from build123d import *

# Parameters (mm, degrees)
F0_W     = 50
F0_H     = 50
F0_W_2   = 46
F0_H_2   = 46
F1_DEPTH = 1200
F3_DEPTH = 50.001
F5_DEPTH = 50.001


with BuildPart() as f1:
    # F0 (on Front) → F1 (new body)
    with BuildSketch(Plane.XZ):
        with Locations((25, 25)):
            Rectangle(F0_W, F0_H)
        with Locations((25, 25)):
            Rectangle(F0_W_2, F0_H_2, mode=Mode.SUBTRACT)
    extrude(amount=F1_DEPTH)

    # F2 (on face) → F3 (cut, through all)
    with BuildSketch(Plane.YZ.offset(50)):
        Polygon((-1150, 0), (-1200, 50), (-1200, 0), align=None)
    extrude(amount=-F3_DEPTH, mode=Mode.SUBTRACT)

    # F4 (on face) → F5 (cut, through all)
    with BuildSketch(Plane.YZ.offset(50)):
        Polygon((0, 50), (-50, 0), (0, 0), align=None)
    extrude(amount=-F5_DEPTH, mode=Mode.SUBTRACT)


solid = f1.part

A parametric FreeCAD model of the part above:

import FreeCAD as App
import Part
import Sketcher

V = App.Vector

doc = App.newDocument("Part")
body = doc.addObject("PartDesign::Body", "Body")

# Sketch on XZ plane
sketch1 = body.newObject("Sketcher::SketchObject", "Sketch")
sketch1.AttachmentSupport = (doc.getObject("XZ_Plane"), [""])
sketch1.MapMode = "FlatFace"
sketch1.addGeometry(Part.LineSegment(V(0, 50, 0), V(0, 0, 0)), False)
sketch1.addGeometry(Part.LineSegment(V(0, 0, 0), V(50, 0, 0)), False)
sketch1.addGeometry(Part.LineSegment(V(50, 0, 0), V(50, 50, 0)), False)
sketch1.addGeometry(Part.LineSegment(V(50, 50, 0), V(0, 50, 0)), False)
sketch1.addGeometry(Part.LineSegment(V(48, 2, 0), V(2, 2, 0)), False)
sketch1.addGeometry(Part.LineSegment(V(2, 2, 0), V(2, 48, 0)), False)
sketch1.addGeometry(Part.LineSegment(V(2, 48, 0), V(48, 48, 0)), False)
sketch1.addGeometry(Part.LineSegment(V(48, 48, 0), V(48, 2, 0)), False)
sketch1.addConstraint(Sketcher.Constraint("Coincident", 0, 2, 1, 1))
sketch1.addConstraint(Sketcher.Constraint("Coincident", 1, 2, 2, 1))
sketch1.addConstraint(Sketcher.Constraint("Coincident", 2, 2, 3, 1))
sketch1.addConstraint(Sketcher.Constraint("Coincident", 3, 2, 0, 1))
sketch1.addConstraint(Sketcher.Constraint("Coincident", 4, 2, 5, 1))
sketch1.addConstraint(Sketcher.Constraint("Coincident", 5, 2, 6, 1))
sketch1.addConstraint(Sketcher.Constraint("Coincident", 6, 2, 7, 1))
sketch1.addConstraint(Sketcher.Constraint("Coincident", 7, 2, 4, 1))
sketch1.addConstraint(Sketcher.Constraint("Vertical", 0))
sketch1.addConstraint(Sketcher.Constraint("Horizontal", 1))
sketch1.addConstraint(Sketcher.Constraint("Vertical", 2))
sketch1.addConstraint(Sketcher.Constraint("Horizontal", 3))
sketch1.addConstraint(Sketcher.Constraint("Horizontal", 4))
sketch1.addConstraint(Sketcher.Constraint("Vertical", 5))
sketch1.addConstraint(Sketcher.Constraint("Horizontal", 6))
sketch1.addConstraint(Sketcher.Constraint("Vertical", 7))
sketch1.addConstraint(Sketcher.Constraint("Coincident", 0, 2, -1, 1))
sketch1.addConstraint(Sketcher.Constraint("Equal", 3, 0))
sketch1.addConstraint(Sketcher.Constraint("Equal", 6, 5))
sketch1.addConstraint(Sketcher.Constraint("DistanceX", 1, 1, 1, 2, 50.0))
sketch1.addConstraint(Sketcher.Constraint("DistanceX", 4, 2, 4, 1, 46.0))
sketch1.addConstraint(Sketcher.Constraint("DistanceX", -1, 1, 4, 2, 2.0))
sketch1.addConstraint(Sketcher.Constraint("DistanceY", -1, 1, 4, 2, 2.0))
pad1 = body.newObject("PartDesign::Pad", "Pad")
pad1.Profile = sketch1
pad1.Length = 1200

# Sketch on YZ plane
sketch2 = body.newObject("Sketcher::SketchObject", "Sketch001")
sketch2.AttachmentSupport = (doc.getObject("YZ_Plane"), [""])
sketch2.MapMode = "FlatFace"
sketch2.AttachmentOffset = App.Placement(V(0, 0, 50), App.Rotation())
sketch2.addGeometry(Part.LineSegment(V(-1150, 0, 0), V(-1200, 50, 0)), False)
sketch2.addGeometry(Part.LineSegment(V(-1200, 50, 0), V(-1200, 0, 0)), False)
sketch2.addGeometry(Part.LineSegment(V(-1200, 0, 0), V(-1150, 0, 0)), False)
sketch2.addConstraint(Sketcher.Constraint("Coincident", 0, 2, 1, 1))
sketch2.addConstraint(Sketcher.Constraint("Coincident", 1, 2, 2, 1))
sketch2.addConstraint(Sketcher.Constraint("Coincident", 2, 2, 0, 1))
sketch2.addConstraint(Sketcher.Constraint("Vertical", 1))
sketch2.addConstraint(Sketcher.Constraint("Horizontal", 2))
sketch2.addConstraint(Sketcher.Constraint("PointOnObject", 1, 2, -1))
sketch2.addConstraint(Sketcher.Constraint("Equal", 2, 1))
sketch2.addConstraint(Sketcher.Constraint("DistanceX", 2, 1, 2, 2, 50.0))
sketch2.addConstraint(Sketcher.Constraint("DistanceX", 0, 2, -1, 1, 1200.0))
pocket1 = body.newObject("PartDesign::Pocket", "Pocket")
pocket1.Profile = sketch2
pocket1.Type = "ThroughAll"

# Sketch on YZ plane
sketch3 = body.newObject("Sketcher::SketchObject", "Sketch002")
sketch3.AttachmentSupport = (doc.getObject("YZ_Plane"), [""])
sketch3.MapMode = "FlatFace"
sketch3.AttachmentOffset = App.Placement(V(0, 0, 50), App.Rotation())
sketch3.addGeometry(Part.LineSegment(V(0, 50, 0), V(-50, 0, 0)), False)
sketch3.addGeometry(Part.LineSegment(V(-50, 0, 0), V(0, 0, 0)), False)
sketch3.addGeometry(Part.LineSegment(V(0, 0, 0), V(0, 50, 0)), False)
sketch3.addConstraint(Sketcher.Constraint("Coincident", 0, 2, 1, 1))
sketch3.addConstraint(Sketcher.Constraint("Coincident", 1, 2, 2, 1))
sketch3.addConstraint(Sketcher.Constraint("Coincident", 2, 2, 0, 1))
sketch3.addConstraint(Sketcher.Constraint("Horizontal", 1))
sketch3.addConstraint(Sketcher.Constraint("Vertical", 2))
sketch3.addConstraint(Sketcher.Constraint("Coincident", 1, 2, -1, 1))
sketch3.addConstraint(Sketcher.Constraint("Equal", 1, 2))
sketch3.addConstraint(Sketcher.Constraint("DistanceX", 1, 1, 1, 2, 50.0))
pocket2 = body.newObject("PartDesign::Pocket", "Pocket001")
pocket2.Profile = sketch3
pocket2.Type = "ThroughAll"

doc.recompute()
